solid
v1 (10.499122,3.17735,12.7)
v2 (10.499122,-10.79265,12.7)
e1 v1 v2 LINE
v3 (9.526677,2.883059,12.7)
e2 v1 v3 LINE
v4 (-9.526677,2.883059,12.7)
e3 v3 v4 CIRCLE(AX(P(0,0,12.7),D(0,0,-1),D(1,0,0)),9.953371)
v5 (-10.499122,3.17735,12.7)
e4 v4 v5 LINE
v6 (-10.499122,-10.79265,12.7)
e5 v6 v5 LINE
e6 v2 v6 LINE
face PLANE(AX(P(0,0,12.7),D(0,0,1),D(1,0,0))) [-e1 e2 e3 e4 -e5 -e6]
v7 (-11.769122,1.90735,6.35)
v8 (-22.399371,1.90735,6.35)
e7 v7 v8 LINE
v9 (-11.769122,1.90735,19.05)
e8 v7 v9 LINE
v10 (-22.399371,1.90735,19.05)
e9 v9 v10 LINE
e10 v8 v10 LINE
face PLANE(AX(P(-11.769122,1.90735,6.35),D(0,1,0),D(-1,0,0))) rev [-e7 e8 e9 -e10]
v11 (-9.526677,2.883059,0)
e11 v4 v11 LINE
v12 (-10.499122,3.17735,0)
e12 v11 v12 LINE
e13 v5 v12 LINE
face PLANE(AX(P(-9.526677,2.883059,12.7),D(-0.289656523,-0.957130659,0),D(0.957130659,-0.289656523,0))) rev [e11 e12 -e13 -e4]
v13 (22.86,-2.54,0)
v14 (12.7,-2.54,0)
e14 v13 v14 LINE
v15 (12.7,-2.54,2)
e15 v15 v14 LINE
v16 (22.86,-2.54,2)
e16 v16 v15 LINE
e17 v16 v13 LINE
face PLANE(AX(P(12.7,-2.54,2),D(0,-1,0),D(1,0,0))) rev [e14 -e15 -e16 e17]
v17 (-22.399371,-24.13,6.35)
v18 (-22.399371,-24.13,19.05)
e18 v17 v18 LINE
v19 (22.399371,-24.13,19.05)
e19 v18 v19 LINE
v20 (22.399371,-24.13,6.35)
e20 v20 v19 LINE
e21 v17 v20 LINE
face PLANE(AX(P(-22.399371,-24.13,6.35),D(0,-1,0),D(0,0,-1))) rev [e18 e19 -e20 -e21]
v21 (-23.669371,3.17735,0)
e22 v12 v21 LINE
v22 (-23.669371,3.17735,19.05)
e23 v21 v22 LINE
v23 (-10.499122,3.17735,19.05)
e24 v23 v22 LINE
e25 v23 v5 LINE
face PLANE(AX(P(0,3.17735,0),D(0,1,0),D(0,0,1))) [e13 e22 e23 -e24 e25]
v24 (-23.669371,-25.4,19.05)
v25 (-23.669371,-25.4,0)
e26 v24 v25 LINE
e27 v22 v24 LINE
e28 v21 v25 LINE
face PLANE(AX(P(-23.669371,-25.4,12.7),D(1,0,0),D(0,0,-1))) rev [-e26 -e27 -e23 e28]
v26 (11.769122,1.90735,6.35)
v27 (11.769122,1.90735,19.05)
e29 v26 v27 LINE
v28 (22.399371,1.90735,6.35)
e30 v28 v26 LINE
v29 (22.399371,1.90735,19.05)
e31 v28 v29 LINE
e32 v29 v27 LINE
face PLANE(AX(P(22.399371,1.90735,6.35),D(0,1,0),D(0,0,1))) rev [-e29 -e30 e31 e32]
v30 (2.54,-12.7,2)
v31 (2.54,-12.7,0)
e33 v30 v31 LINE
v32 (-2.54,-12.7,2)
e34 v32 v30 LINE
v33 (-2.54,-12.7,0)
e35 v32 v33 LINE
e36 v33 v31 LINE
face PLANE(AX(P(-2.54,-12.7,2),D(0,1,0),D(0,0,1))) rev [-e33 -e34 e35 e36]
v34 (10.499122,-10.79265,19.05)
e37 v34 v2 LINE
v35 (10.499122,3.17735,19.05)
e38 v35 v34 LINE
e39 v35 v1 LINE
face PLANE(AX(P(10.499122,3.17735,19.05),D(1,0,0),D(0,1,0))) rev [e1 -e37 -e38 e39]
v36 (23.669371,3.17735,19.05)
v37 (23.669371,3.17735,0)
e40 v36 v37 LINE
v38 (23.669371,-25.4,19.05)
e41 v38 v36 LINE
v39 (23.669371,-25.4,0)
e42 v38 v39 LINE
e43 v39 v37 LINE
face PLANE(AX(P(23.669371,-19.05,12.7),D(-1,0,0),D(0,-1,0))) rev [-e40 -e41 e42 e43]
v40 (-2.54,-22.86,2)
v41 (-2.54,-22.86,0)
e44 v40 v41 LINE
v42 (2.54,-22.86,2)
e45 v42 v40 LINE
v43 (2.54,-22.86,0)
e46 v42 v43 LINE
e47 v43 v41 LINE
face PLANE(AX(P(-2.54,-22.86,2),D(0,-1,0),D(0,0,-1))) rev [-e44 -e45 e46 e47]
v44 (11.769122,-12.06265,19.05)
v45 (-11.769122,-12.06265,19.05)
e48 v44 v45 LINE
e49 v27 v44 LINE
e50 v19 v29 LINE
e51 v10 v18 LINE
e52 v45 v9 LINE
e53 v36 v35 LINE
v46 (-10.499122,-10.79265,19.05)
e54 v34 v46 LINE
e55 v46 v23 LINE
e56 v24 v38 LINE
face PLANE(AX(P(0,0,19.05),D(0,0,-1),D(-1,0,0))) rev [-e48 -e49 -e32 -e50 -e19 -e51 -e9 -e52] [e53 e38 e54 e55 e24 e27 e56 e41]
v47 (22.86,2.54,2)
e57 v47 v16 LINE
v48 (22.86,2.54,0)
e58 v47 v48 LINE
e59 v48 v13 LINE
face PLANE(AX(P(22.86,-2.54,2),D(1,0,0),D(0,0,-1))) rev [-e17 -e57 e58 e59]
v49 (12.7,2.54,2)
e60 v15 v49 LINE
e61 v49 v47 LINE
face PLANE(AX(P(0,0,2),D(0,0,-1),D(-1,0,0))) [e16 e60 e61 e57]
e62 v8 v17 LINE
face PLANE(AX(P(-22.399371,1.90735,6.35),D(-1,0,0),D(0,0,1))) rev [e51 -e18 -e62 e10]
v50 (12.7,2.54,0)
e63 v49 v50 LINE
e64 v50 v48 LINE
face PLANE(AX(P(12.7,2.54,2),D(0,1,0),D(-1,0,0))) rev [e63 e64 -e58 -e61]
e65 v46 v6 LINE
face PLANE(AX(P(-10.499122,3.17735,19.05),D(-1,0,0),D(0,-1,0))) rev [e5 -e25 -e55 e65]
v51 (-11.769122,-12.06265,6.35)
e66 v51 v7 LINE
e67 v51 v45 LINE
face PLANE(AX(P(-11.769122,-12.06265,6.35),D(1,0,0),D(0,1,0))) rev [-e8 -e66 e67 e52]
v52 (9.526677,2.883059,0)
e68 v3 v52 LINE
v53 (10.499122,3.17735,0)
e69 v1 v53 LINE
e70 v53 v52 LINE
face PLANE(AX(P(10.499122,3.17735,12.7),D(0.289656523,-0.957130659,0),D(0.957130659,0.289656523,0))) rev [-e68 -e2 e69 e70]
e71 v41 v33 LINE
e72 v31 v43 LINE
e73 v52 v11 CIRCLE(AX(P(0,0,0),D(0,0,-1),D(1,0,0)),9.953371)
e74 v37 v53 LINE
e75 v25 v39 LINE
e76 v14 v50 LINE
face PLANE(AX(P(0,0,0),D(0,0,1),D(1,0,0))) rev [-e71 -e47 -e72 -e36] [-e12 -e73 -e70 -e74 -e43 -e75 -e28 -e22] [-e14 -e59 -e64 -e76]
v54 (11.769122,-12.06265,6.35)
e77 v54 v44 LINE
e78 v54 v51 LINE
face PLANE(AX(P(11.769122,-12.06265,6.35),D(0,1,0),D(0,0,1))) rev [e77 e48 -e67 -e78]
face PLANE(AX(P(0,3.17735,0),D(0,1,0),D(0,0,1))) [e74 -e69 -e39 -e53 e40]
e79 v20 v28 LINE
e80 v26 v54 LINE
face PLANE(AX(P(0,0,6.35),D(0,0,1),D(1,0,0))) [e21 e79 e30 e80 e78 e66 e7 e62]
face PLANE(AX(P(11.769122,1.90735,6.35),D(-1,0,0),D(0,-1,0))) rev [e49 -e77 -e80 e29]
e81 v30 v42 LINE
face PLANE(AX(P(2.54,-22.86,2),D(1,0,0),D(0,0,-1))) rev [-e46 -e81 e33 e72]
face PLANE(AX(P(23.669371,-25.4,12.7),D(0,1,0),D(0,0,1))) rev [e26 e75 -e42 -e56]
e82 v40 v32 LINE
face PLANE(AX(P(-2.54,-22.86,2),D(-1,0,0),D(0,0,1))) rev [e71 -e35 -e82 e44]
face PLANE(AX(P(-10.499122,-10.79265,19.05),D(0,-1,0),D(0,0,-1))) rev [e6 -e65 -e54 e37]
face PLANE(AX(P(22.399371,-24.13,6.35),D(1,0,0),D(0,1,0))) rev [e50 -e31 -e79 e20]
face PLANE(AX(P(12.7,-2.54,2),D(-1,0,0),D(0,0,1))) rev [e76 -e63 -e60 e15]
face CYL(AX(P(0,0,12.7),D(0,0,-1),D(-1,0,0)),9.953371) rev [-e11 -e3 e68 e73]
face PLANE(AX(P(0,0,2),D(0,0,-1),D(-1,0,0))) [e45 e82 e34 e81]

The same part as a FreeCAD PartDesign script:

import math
import FreeCAD as App
import Part
import Sketcher
from FreeCAD import Vector
Q = App.Units.Quantity

doc = App.newDocument("Part")
body = doc.addObject("PartDesign::Body", "Body")

# Sketch on XY plane
sketch1 = body.newObject("Sketcher::SketchObject", "Sketch")
sketch1.AttachmentSupport = (doc.getObject("XY_Plane"), [""])
sketch1.MapMode = "FlatFace"
sketch1.addGeometry([
    Part.LineSegment(Vector(10.499122, 3.17735, 0), Vector(9.526677, 2.883059, 0)),  # 0
    Part.ArcOfCircle(Part.Circle(Vector(0, 0, 0), Vector(0, 0, 1), 9.953371), math.radians(163.162606), math.radians(376.837394)),  # 1
    Part.LineSegment(Vector(-9.526677, 2.883059, 0), Vector(-10.499122, 3.17735, 0)),  # 2
    Part.ArcOfCircle(Part.Circle(Vector(0, 0, 0), Vector(0, 0, 1), 10.969371), math.radians(163.162606), math.radians(180)),  # 3
    Part.LineSegment(Vector(-10.969371, 0, 0), Vector(-10.969371, -19.05, 0)),  # 4
    Part.LineSegment(Vector(-10.969371, -19.05, 0), Vector(-23.669371, -19.05, 0)),  # 5
    Part.LineSegment(Vector(-23.669371, -19.05, 0), Vector(-23.669371, -25.4, 0)),  # 6
    Part.LineSegment(Vector(-23.669371, -25.4, 0), Vector(23.669371, -25.4, 0)),  # 7
    Part.LineSegment(Vector(23.669371, -25.4, 0), Vector(23.669371, -19.05, 0)),  # 8
    Part.LineSegment(Vector(23.669371, -19.05, 0), Vector(10.969371, -19.05, 0)),  # 9
    Part.LineSegment(Vector(10.969371, -19.05, 0), Vector(10.969371, 0, 0)),  # 10
    Part.ArcOfCircle(Part.Circle(Vector(0, 0, 0), Vector(0, 0, 1), 10.969371), math.radians(0), math.radians(16.837394)),  # 11
], False)
sketch1.addConstraint([
    Sketcher.Constraint("Coincident", 0, 2, 1, 2),
    Sketcher.Constraint("Coincident", 1, 1, 2, 1),
    Sketcher.Constraint("Coincident", 2, 2, 3, 1),
    Sketcher.Constraint("Tangent", 3, 2, 4, 1),
    Sketcher.Constraint("Coincident", 4, 2, 5, 1),
    Sketcher.Constraint("Coincident", 5, 2, 6, 1),
    Sketcher.Constraint("Coincident", 6, 2, 7, 1),
    Sketcher.Constraint("Coincident", 7, 2, 8, 1),
    Sketcher.Constraint("Coincident", 8, 2, 9, 1),
    Sketcher.Constraint("Coincident", 9, 2, 10, 1),
    Sketcher.Constraint("Tangent", 10, 2, 11, 1),
    Sketcher.Constraint("Coincident", 11, 2, 0, 1),
    Sketcher.Constraint("Vertical", 4),
    Sketcher.Constraint("Horizontal", 5),
    Sketcher.Constraint("Vertical", 6),
    Sketcher.Constraint("Horizontal", 7),
    Sketcher.Constraint("Vertical", 8),
    Sketcher.Constraint("Horizontal", 9),
    Sketcher.Constraint("Vertical", 10),
    Sketcher.Constraint("Coincident", 1, 3, -1, 1),
    Sketcher.Constraint("Coincident", 3, 3, -1, 1),
    Sketcher.Constraint("Coincident", 11, 3, -1, 1),
    Sketcher.Constraint("Equal", 3, 11),
    Sketcher.Constraint("Symmetric", 5, 2, 8, 2, -2),
    Sketcher.Constraint("Horizontal", 0, 2, 1, 1),
    Sketcher.Constraint("Horizontal", 2, 2, 11, 2),
    Sketcher.Constraint("DistanceX", 5, 2, 5, 1, Q("0.5 in")),
    Sketcher.Constraint("DistanceY", 6, 2, -1, 1, Q("1 in")),
    Sketcher.Constraint("DistanceY", 4, 2, 4, 1, Q("0.75 in")),
    Sketcher.Constraint("Distance", 0, Q("0.04 in")),
    Sketcher.Constraint("Radius", 1, Q("9.953371 mm")),
    Sketcher.Constraint("DistanceX", 2, 2, 0, 2, Q("20.025798 mm")),
    Sketcher.Constraint("DistanceY", -1, 1, 0, 2, Q("2.883059 mm")),
])
pad1 = body.newObject("PartDesign::Pad", "Pad")
pad1.Profile = sketch1
pad1.Length = Q("0.5 in")

# Sketch on XZ plane
sketch2 = body.newObject("Sketcher::SketchObject", "Sketch001")
sketch2.AttachmentSupport = (doc.getObject("XZ_Plane"), [""])
sketch2.MapMode = "FlatFace"
sketch2.AttachmentOffset = App.Placement(Vector(0, 0, 0.75 * 25.4), App.Rotation())
sketch2.addGeometry([
    Part.LineSegment(Vector(10.969371, 0, 0), Vector(10.969371, 12.7, 0)),
    Part.LineSegment(Vector(10.969371, 12.7, 0), Vector(23.669371, 12.7, 0)),
    Part.LineSegment(Vector(23.669371, 12.7, 0), Vector(23.669371, 0, 0)),
    Part.LineSegment(Vector(23.669371, 0, 0), Vector(10.969371, 0, 0)),
], False)
sketch2.addConstraint([
    Sketcher.Constraint("Coincident", 0, 2, 1, 1),
    Sketcher.Constraint("Coincident", 1, 2, 2, 1),
    Sketcher.Constraint("Coincident", 2, 2, 3, 1),
    Sketcher.Constraint("Coincident", 3, 2, 0, 1),
    Sketcher.Constraint("Vertical", 0),
    Sketcher.Constraint("Horizontal", 1),
    Sketcher.Constraint("Vertical", 2),
    Sketcher.Constraint("Horizontal", 3),
    Sketcher.Constraint("PointOnObject", 2, 2, -1),
    Sketcher.Constraint("Equal", 3, 0),
    Sketcher.Constraint("DistanceX", 1, 1, 1, 2, Q("0.5 in")),
    Sketcher.Constraint("DistanceX", -1, 1, 0, 2, Q("10.969371 mm")),
])
pad2 = body.newObject("PartDesign::Pad", "Pad001")
pad2.Profile = sketch2
pad2.Length = 22.22735
pad2.Reversed = True

# Sketch on XY plane
sketch3 = body.newObject("Sketcher::SketchObject", "Sketch002")
sketch3.AttachmentSupport = (doc.getObject("XY_Plane"), [""])
sketch3.MapMode = "FlatFace"
sketch3.addGeometry([
    Part.LineSegment(Vector(10.969371, 3.17735, 0), Vector(10.969371, 0, 0)),
    Part.ArcOfCircle(Part.Circle(Vector(0, 0, 0), Vector(0, 0, 1), 10.969371), math.radians(0), math.radians(16.837394)),
    Part.LineSegment(Vector(10.499122, 3.17735, 0), Vector(10.969371, 3.17735, 0)),
], False)
sketch3.addConstraint([
    Sketcher.Constraint("Tangent", 0, 2, 1, 1),
    Sketcher.Constraint("Coincident", 1, 2, 2, 1),
    Sketcher.Constraint("Coincident", 2, 2, 0, 1),
    Sketcher.Constraint("Vertical", 0),
    Sketcher.Constraint("Horizontal", 2),
    Sketcher.Constraint("Coincident", 1, 3, -1, 1),
    Sketcher.Constraint("Radius", 1, Q("10.969371 mm")),
    Sketcher.Constraint("DistanceX", 2, 1, 2, 2, Q("0.47025 mm")),
])
pad3 = body.newObject("PartDesign::Pad", "Pad002")
pad3.Profile = sketch3
pad3.Length = Q("0.5 in")

# Sketch on XZ plane
sketch4 = body.newObject("Sketcher::SketchObject", "Sketch003")
sketch4.AttachmentSupport = (doc.getObject("XZ_Plane"), [""])
sketch4.MapMode = "FlatFace"
sketch4.AttachmentOffset = App.Placement(Vector(0, 0, 0.75 * 25.4), App.Rotation())
sketch4.addGeometry([
    Part.LineSegment(Vector(-23.669371, 0, 0), Vector(-23.669371, 12.7, 0)),
    Part.LineSegment(Vector(-23.669371, 12.7, 0), Vector(-10.969371, 12.7, 0)),
    Part.LineSegment(Vector(-10.969371, 12.7, 0), Vector(-10.969371, 0, 0)),
    Part.LineSegment(Vector(-10.969371, 0, 0), Vector(-23.669371, 0, 0)),
], False)
sketch4.addConstraint([
    Sketcher.Constraint("Coincident", 0, 2, 1, 1),
    Sketcher.Constraint("Coincident", 1, 2, 2, 1),
    Sketcher.Constraint("Coincident", 2, 2, 3, 1),
    Sketcher.Constraint("Coincident", 3, 2, 0, 1),
    Sketcher.Constraint("Vertical", 0),
    Sketcher.Constraint("Horizontal", 1),
    Sketcher.Constraint("Vertical", 2),
    Sketcher.Constraint("Horizontal", 3),
    Sketcher.Constraint("PointOnObject", 2, 2, -1),
    Sketcher.Constraint("Equal", 3, 0),
    Sketcher.Constraint("DistanceX", 1, 1, 1, 2, Q("0.5 in")),
    Sketcher.Constraint("DistanceX", 0, 2, -1, 1, Q("23.669371 mm")),
])
pad4 = body.newObject("PartDesign::Pad", "Pad003")
pad4.Profile = sketch4
pad4.Length = 22.22735
pad4.Reversed = True

# Sketch on XY plane
sketch5 = body.newObject("Sketcher::SketchObject", "Sketch004")
sketch5.AttachmentSupport = (doc.getObject("XY_Plane"), [""])
sketch5.MapMode = "FlatFace"
sketch5.addGeometry([
    Part.LineSegment(Vector(-10.969371, 0, 0), Vector(-10.969371, 3.17735, 0)),
    Part.LineSegment(Vector(-10.969371, 3.17735, 0), Vector(-10.499122, 3.17735, 0)),
    Part.ArcOfCircle(Part.Circle(Vector(0, 0, 0), Vector(0, 0, 1), 10.969371), math.radians(163.162606), math.radians(180)),
], False)
sketch5.addConstraint([
    Sketcher.Constraint("Coincident", 0, 2, 1, 1),
    Sketcher.Constraint("Coincident", 1, 2, 2, 1),
    Sketcher.Constraint("Tangent", 2, 2, 0, 1),
    Sketcher.Constraint("Vertical", 0),
    Sketcher.Constraint("Horizontal", 1),
    Sketcher.Constraint("Coincident", 2, 3, -1, 1),
    Sketcher.Constraint("Radius", 2, Q("10.969371 mm")),
    Sketcher.Constraint("DistanceX", 1, 1, 1, 2, Q("0.47025 mm")),
])
pad5 = body.newObject("PartDesign::Pad", "Pad004")
pad5.Profile = sketch5
pad5.Length = Q("0.5 in")

# Sketch on XY plane
sketch6 = body.newObject("Sketcher::SketchObject", "Sketch005")
sketch6.AttachmentSupport = (doc.getObject("XY_Plane"), [""])
sketch6.MapMode = "FlatFace"
sketch6.AttachmentOffset = App.Placement(Vector(0, 0, 0.5 * 25.4), App.Rotation())
sketch6.addGeometry([
    Part.LineSegment(Vector(-23.669371, 3.17735, 0), Vector(-23.669371, -25.4, 0)),  # 0
    Part.LineSegment(Vector(-23.669371, -25.4, 0), Vector(23.669371, -25.4, 0)),  # 1
    Part.LineSegment(Vector(23.669371, -25.4, 0), Vector(23.669371, 3.17735, 0)),  # 2
    Part.LineSegment(Vector(23.669371, 3.17735, 0), Vector(10.499122, 3.17735, 0)),  # 3
    Part.LineSegment(Vector(10.499122, 3.17735, 0), Vector(10.499122, -10.79265, 0)),  # 4
    Part.LineSegment(Vector(10.499122, -10.79265, 0), Vector(-10.499122, -10.79265, 0)),  # 5
    Part.LineSegment(Vector(-10.499122, -10.79265, 0), Vector(-10.499122, 3.17735, 0)),  # 6
    Part.LineSegment(Vector(-10.499122, 3.17735, 0), Vector(-23.669371, 3.17735, 0)),  # 7
], False)
sketch6.addConstraint([
    Sketcher.Constraint("Coincident", 0, 2, 1, 1),
    Sketcher.Constraint("Coincident", 1, 2, 2, 1),
    Sketcher.Constraint("Coincident", 2, 2, 3, 1),
    Sketcher.Constraint("Coincident", 3, 2, 4, 1),
    Sketcher.Constraint("Coincident", 4, 2, 5, 1),
    Sketcher.Constraint("Coincident", 5, 2, 6, 1),
    Sketcher.Constraint("Coincident", 6, 2, 7, 1),
    Sketcher.Constraint("Coincident", 7, 2, 0, 1),
    Sketcher.Constraint("Vertical", 0),
    Sketcher.Constraint("Horizontal", 1),
    Sketcher.Constraint("Vertical", 2),
    Sketcher.Constraint("Horizontal", 3),
    Sketcher.Constraint("Vertical", 4),
    Sketcher.Constraint("Horizontal", 5),
    Sketcher.Constraint("Vertical", 6),
    Sketcher.Constraint("Horizontal", 7),
    Sketcher.Constraint("Symmetric", 3, 2, 6, 2, -2),
    Sketcher.Constraint("Equal", 3, 7),
    Sketcher.Constraint("DistanceY", 0, 2, -1, 1, Q("1 in")),
    Sketcher.Constraint("DistanceY", 4, 2, 4, 1, Q("0.55 in")),
    Sketcher.Constraint("DistanceX", 3, 2, 3, 1, Q("13.17025 mm")),
    Sketcher.Constraint("DistanceY", 0, 2, 0, 1, Q("28.57735 mm")),
    Sketcher.Constraint("DistanceX", 1, 1, 1, 2, Q("47.338743 mm")),
])
pad6 = body.newObject("PartDesign::Pad", "Pad005")
pad6.Profile = sketch6
pad6.Length = Q("0.25 in")

# Sketch on XY plane
sketch7 = body.newObject("Sketcher::SketchObject", "Sketch006")
sketch7.AttachmentSupport = (doc.getObject("XY_Plane"), [""])
sketch7.MapMode = "FlatFace"
sketch7.AttachmentOffset = App.Placement(Vector(0, 0, 0.75 * 25.4), App.Rotation())
sketch7.addGeometry([
    Part.LineSegment(Vector(-11.769122, 1.90735, 0), Vector(-22.399371, 1.90735, 0)),  # 0
    Part.LineSegment(Vector(-22.399371, 1.90735, 0), Vector(-22.399371, -24.13, 0)),  # 1
    Part.LineSegment(Vector(-22.399371, -24.13, 0), Vector(22.399371, -24.13, 0)),  # 2
    Part.LineSegment(Vector(22.399371, -24.13, 0), Vector(22.399371, 1.90735, 0)),  # 3
    Part.LineSegment(Vector(22.399371, 1.90735, 0), Vector(11.769122, 1.90735, 0)),  # 4
    Part.LineSegment(Vector(11.769122, 1.90735, 0), Vector(11.769122, -12.06265, 0)),  # 5
    Part.LineSegment(Vector(11.769122, -12.06265, 0), Vector(-11.769122, -12.06265, 0)),  # 6
    Part.LineSegment(Vector(-11.769122, -12.06265, 0), Vector(-11.769122, 1.90735, 0)),  # 7
], False)
sketch7.addConstraint([
    Sketcher.Constraint("Coincident", 0, 2, 1, 1),
    Sketcher.Constraint("Coincident", 1, 2, 2, 1),
    Sketcher.Constraint("Coincident", 2, 2, 3, 1),
    Sketcher.Constraint("Coincident", 3, 2, 4, 1),
    Sketcher.Constraint("Coincident", 4, 2, 5, 1),
    Sketcher.Constraint("Coincident", 5, 2, 6, 1),
    Sketcher.Constraint("Coincident", 6, 2, 7, 1),
    Sketcher.Constraint("Coincident", 7, 2, 0, 1),
    Sketcher.Constraint("Horizontal", 0),
    Sketcher.Constraint("Vertical", 1),
    Sketcher.Constraint("Horizontal", 2),
    Sketcher.Constraint("Vertical", 3),
    Sketcher.Constraint("Horizontal", 4),
    Sketcher.Constraint("Vertical", 5),
    Sketcher.Constraint("Horizontal", 6),
    Sketcher.Constraint("Vertical", 7),
    Sketcher.Constraint("Symmetric", 0, 2, 3, 2, -2),
    Sketcher.Constraint("Equal", 0, 4),
    Sketcher.Constraint("DistanceY", 5, 2, 5, 1, Q("0.55 in")),
    Sketcher.Constraint("DistanceY", 1, 2, -1, 1, Q("0.95 in")),
    Sketcher.Constraint("DistanceX", 0, 2, 0, 1, Q("10.63025 mm")),
    Sketcher.Constraint("DistanceY", 1, 2, 1, 1, Q("26.03735 mm")),
    Sketcher.Constraint("DistanceX", 2, 1, 2, 2, Q("44.798743 mm")),
])
pocket1 = body.newObject("PartDesign::Pocket", "Pocket")
pocket1.Profile = sketch7
pocket1.Length = Q("0.5 in")

# Sketch on XY plane
sketch8 = body.newObject("Sketcher::SketchObject", "Sketch007")
sketch8.AttachmentSupport = (doc.getObject("XY_Plane"), [""])
sketch8.MapMode = "FlatFace"
sketch8.addGeometry([
    Part.LineSegment(Vector(22.86, 2.54, 0), Vector(22.86, -2.54, 0)),  # 0
    Part.LineSegment(Vector(22.86, -2.54, 0), Vector(12.7, -2.54, 0)),  # 1
    Part.LineSegment(Vector(12.7, -2.54, 0), Vector(12.7, 2.54, 0)),  # 2
    Part.LineSegment(Vector(12.7, 2.54, 0), Vector(22.86, 2.54, 0)),  # 3
    Part.LineSegment(Vector(2.54, -12.7, 0), Vector(2.54, -22.86, 0)),  # 4
    Part.LineSegment(Vector(2.54, -22.86, 0), Vector(-2.54, -22.86, 0)),  # 5
    Part.LineSegment(Vector(-2.54, -22.86, 0), Vector(-2.54, -12.7, 0)),  # 6
    Part.LineSegment(Vector(-2.54, -12.7, 0), Vector(2.54, -12.7, 0)),  # 7
], False)
sketch8.addConstraint([
    Sketcher.Constraint("Coincident", 0, 2, 1, 1),
    Sketcher.Constraint("Coincident", 1, 2, 2, 1),
    Sketcher.Constraint("Coincident", 2, 2, 3, 1),
    Sketcher.Constraint("Coincident", 3, 2, 0, 1),
    Sketcher.Constraint("Coincident", 4, 2, 5, 1),
    Sketcher.Constraint("Coincident", 5, 2, 6, 1),
    Sketcher.Constraint("Coincident", 6, 2, 7, 1),
    Sketcher.Constraint("Coincident", 7, 2, 4, 1),
    Sketcher.Constraint("Vertical", 0),
    Sketcher.Constraint("Horizontal", 1),
    Sketcher.Constraint("Vertical", 2),
    Sketcher.Constraint("Horizontal", 3),
    Sketcher.Constraint("Vertical", 4),
    Sketcher.Constraint("Horizontal", 5),
    Sketcher.Constraint("Vertical", 6),
    Sketcher.Constraint("Horizontal", 7),
    Sketcher.Constraint("Equal", 7, 0),
    Sketcher.Constraint("Equal", 3, 4),
    Sketcher.Constraint("DistanceX", 1, 2, 1, 1, Q("0.4 in")),
    Sketcher.Constraint("DistanceX", 5, 2, 5, 1, Q("0.2 in")),
    Sketcher.Constraint("DistanceY", 4, 2, 2, 2, Q("1 in")),
    Sketcher.Constraint("DistanceX", 5, 2, 0, 2, Q("1 in")),
    Sketcher.Constraint("DistanceX", -1, 1, 0, 2, Q("0.9 in")),
    Sketcher.Constraint("DistanceY", 0, 2, -1, 1, Q("0.1 in")),
])
pocket2 = body.newObject("PartDesign::Pocket", "Pocket001")
pocket2.Profile = sketch8
pocket2.Length = 2
pocket2.Reversed = True

doc.recompute()
